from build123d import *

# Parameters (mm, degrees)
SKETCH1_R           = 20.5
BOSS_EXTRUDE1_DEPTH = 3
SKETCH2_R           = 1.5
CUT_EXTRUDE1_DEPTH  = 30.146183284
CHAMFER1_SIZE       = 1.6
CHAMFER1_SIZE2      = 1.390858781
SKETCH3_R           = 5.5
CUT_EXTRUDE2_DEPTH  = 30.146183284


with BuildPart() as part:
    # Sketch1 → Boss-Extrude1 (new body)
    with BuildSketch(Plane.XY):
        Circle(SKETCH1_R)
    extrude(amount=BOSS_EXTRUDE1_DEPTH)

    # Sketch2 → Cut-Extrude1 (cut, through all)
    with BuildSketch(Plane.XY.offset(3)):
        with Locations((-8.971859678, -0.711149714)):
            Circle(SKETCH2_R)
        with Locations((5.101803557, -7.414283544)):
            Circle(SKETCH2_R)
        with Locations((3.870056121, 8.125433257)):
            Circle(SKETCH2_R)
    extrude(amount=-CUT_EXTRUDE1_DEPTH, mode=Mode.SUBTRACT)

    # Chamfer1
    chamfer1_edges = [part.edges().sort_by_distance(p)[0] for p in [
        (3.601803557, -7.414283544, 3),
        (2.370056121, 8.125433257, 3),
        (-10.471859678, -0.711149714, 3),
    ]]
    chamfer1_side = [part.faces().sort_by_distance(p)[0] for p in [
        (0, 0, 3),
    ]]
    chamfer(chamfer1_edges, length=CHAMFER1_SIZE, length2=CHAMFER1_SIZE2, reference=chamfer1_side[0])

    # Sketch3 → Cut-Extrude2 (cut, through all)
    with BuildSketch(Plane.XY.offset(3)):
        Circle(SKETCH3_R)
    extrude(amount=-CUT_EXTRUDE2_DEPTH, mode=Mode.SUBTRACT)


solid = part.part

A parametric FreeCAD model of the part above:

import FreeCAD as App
import Part
import Sketcher

V = App.Vector


def edges_at(feature, points):
    """Names of the edges that pass closest to the given points."""
    edges = feature.Shape.Edges
    near = lambda p: min(range(len(edges)), key=lambda i: edges[i].distToShape(Part.Vertex(*p))[0])
    return sorted({f"Edge{near(p) + 1}" for p in points})

doc = App.newDocument("Part")
body = doc.addObject("PartDesign::Body", "Body")

sketch1 = body.newObject("Sketcher::SketchObject", "Sketch")
sketch1.AttachmentSupport = (doc.getObject("XY_Plane"), [""])
sketch1.MapMode = "FlatFace"
sketch1.addGeometry(Part.Circle(V(0, 0, 0), V(0, 0, 1), 20.5), False)
sketch1.addConstraint(Sketcher.Constraint("Coincident", 0, 3, -1, 1))
sketch1.addConstraint(Sketcher.Constraint("Diameter", 0, 41.0))
pad1 = body.newObject("PartDesign::Pad", "Pad")
pad1.Profile = sketch1
pad1.Length = 3

sketch2 = body.newObject("Sketcher::SketchObject", "Sketch001")
sketch2.AttachmentSupport = (doc.getObject("XY_Plane"), [""])
sketch2.MapMode = "FlatFace"
sketch2.AttachmentOffset = App.Placement(V(0, 0, 3), App.Rotation())
sketch2.addGeometry(Part.Circle(V(-8.97186, -0.71115, 0), V(0, 0, 1), 1.5), False)
sketch2.addGeometry(Part.Circle(V(5.101804, -7.414284, 0), V(0, 0, 1), 1.5), False)
sketch2.addGeometry(Part.Circle(V(3.870056, 8.125433, 0), V(0, 0, 1), 1.5), False)
sketch2.addConstraint(Sketcher.Constraint("Equal", 0, 1))
sketch2.addConstraint(Sketcher.Constraint("Equal", 1, 2))
sketch2.addConstraint(Sketcher.Constraint("Diameter", 0, 3.0))
sketch2.addConstraint(Sketcher.Constraint("DistanceX", 0, 3, -1, 1, 8.97186))
sketch2.addConstraint(Sketcher.Constraint("DistanceY", 0, 3, -1, 1, 0.71115))
sketch2.addConstraint(Sketcher.Constraint("DistanceX", -1, 1, 1, 3, 5.101804))
sketch2.addConstraint(Sketcher.Constraint("DistanceY", 1, 3, -1, 1, 7.414284))
sketch2.addConstraint(Sketcher.Constraint("DistanceX", -1, 1, 2, 3, 3.870056))
sketch2.addConstraint(Sketcher.Constraint("DistanceY", -1, 1, 2, 3, 8.125433))
pocket1 = body.newObject("PartDesign::Pocket", "Pocket")
pocket1.Profile = sketch2
pocket1.Type = "ThroughAll"
doc.recompute()

chamfer = body.newObject("PartDesign::Chamfer", "Chamfer")
chamfer.Base = (pocket1, edges_at(pocket1, [(3.602, -7.414, 3), (2.37, 8.125, 3), (-10.472, -0.711, 3)]))
chamfer.ChamferType = "Two distances"
chamfer.Size = 1.6
chamfer.Size2 = 1.390859

sketch3 = body.newObject("Sketcher::SketchObject", "Sketch002")
sketch3.AttachmentSupport = (doc.getObject("XY_Plane"), [""])
sketch3.MapMode = "FlatFace"
sketch3.AttachmentOffset = App.Placement(V(0, 0, 3), App.Rotation())
sketch3.addGeometry(Part.Circle(V(0, 0, 0), V(0, 0, 1), 5.5), False)
sketch3.addConstraint(Sketcher.Constraint("Coincident", 0, 3, -1, 1))
sketch3.addConstraint(Sketcher.Constraint("Diameter", 0, 11.0))
pocket2 = body.newObject("PartDesign::Pocket", "Pocket001")
pocket2.Profile = sketch3
pocket2.Type = "ThroughAll"

doc.recompute()
